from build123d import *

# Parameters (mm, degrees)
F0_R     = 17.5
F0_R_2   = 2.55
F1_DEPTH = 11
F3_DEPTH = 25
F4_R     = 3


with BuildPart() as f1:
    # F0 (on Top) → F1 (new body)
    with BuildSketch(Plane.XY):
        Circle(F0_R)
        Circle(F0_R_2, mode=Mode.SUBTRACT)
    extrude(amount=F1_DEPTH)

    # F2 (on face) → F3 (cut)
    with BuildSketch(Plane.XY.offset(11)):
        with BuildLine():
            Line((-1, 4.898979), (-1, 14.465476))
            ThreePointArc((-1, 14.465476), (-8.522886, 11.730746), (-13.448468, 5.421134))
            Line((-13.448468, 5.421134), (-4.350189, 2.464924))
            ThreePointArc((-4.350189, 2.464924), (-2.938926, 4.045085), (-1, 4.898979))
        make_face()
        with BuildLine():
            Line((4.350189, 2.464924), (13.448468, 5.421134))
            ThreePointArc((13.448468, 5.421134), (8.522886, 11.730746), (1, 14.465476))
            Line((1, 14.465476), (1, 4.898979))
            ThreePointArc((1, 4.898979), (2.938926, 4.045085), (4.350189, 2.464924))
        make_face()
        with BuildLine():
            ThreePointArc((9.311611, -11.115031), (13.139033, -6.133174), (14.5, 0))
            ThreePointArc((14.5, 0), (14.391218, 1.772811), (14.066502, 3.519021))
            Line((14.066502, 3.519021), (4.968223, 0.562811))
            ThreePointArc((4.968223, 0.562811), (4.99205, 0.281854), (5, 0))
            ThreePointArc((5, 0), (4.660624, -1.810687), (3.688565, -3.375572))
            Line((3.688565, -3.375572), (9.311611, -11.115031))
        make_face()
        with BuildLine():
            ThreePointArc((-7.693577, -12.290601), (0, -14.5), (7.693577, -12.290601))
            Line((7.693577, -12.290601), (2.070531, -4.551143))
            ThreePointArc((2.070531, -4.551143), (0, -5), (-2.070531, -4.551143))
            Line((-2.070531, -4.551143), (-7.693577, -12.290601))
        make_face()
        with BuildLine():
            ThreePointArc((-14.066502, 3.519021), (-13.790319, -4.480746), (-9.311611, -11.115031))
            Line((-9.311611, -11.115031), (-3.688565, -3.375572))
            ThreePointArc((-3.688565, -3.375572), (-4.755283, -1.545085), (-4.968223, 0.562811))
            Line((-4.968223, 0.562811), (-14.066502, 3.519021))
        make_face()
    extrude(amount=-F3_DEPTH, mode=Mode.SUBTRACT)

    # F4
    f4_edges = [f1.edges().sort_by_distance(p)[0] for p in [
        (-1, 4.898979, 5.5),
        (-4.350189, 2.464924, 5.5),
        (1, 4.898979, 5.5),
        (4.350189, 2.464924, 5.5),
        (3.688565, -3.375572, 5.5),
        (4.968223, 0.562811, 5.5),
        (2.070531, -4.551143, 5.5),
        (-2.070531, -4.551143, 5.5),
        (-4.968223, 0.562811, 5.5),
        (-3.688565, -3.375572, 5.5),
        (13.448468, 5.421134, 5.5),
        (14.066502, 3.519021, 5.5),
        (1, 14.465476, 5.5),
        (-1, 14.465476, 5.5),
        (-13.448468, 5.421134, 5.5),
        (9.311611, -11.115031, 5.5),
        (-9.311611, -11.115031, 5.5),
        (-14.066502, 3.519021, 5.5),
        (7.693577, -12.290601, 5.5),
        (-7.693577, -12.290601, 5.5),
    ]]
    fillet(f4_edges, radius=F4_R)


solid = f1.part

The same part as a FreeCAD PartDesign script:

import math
import FreeCAD as App
import Part
import Sketcher

V = App.Vector
Q = App.Units.Quantity


def edges_at(feature, points):
    """Names of the edges that pass closest to the given points."""
    edges = feature.Shape.Edges
    near = lambda p: min(range(len(edges)), key=lambda i: edges[i].distToShape(Part.Vertex(*p))[0])
    return sorted({f"Edge{near(p) + 1}" for p in points})

doc = App.newDocument("Part")
body = doc.addObject("PartDesign::Body", "Body")

# Sketch on XY plane
sketch1 = body.newObject("Sketcher::SketchObject", "Sketch")
sketch1.AttachmentSupport = (doc.getObject("XY_Plane"), [""])
sketch1.MapMode = "FlatFace"
sketch1.addGeometry([
    Part.Circle(V(0, 0, 0), V(0, 0, 1), 17.5),
    Part.Circle(V(0, 0, 0), V(0, 0, 1), 2.5),
], False)
sketch1.addConstraint([
    Sketcher.Constraint("Coincident", 0, 3, -1, 1),
    Sketcher.Constraint("Coincident", 1, 3, -1, 1),
    Sketcher.Constraint("Diameter", 0, Q("35 mm")),
    Sketcher.Constraint("Diameter", 1, Q("5.1 mm")),
])
pad1 = body.newObject("PartDesign::Pad", "Pad")
pad1.Profile = sketch1
pad1.Length = 11

# Sketch on XY plane
sketch2 = body.newObject("Sketcher::SketchObject", "Sketch001")
sketch2.AttachmentSupport = (doc.getObject("XY_Plane"), [""])
sketch2.MapMode = "FlatFace"
sketch2.AttachmentOffset = App.Placement(V(0, 0, 11), App.Rotation())
sketch2.addGeometry([
    Part.LineSegment(V(-1, 4.898979, 0), V(-1, 14.465476, 0)),  # 0
    Part.ArcOfCircle(Part.Circle(V(0.000001, 0, 0), V(0, 0, 1), 14.5), math.radians(93.954575), math.radians(158.045429)),  # 1
    Part.LineSegment(V(-13.448468, 5.421134, 0), V(-4.350189, 2.464924, 0)),  # 2
    Part.ArcOfCircle(Part.Circle(V(-0.000002, 0.000003, 0), V(0, 0, 1), 4.999996), math.radians(101.536941), math.radians(150.463064)),  # 3
    Part.LineSegment(V(4.350189, 2.464924, 0), V(13.448468, 5.421134, 0)),  # 4
    Part.ArcOfCircle(Part.Circle(V(-0.000001, 0, 0), V(0, 0, 1), 14.5), math.radians(21.954571), math.radians(86.045425)),  # 5
    Part.LineSegment(V(1, 14.465476, 0), V(1, 4.898979, 0)),  # 6
    Part.ArcOfCircle(Part.Circle(V(0.000002, 0.000003, 0), V(0, 0, 1), 4.999996), math.radians(29.536936), math.radians(78.463059)),  # 7
    Part.ArcOfCircle(Part.Circle(V(0.000001, -0.000001, 0), V(0, 0, 1), 14.499999), math.radians(-50.045428), math.radians(0.000005)),  # 8
    Part.ArcOfCircle(Part.Circle(V(0.000095, 0.00001, 0), V(0, 0, 1), 14.499905), math.radians(-0.000039), math.radians(14.04548)),  # 9
    Part.LineSegment(V(14.066502, 3.519021, 0), V(4.968223, 0.562811, 0)),  # 10
    Part.ArcOfCircle(Part.Circle(V(0.000432, 0.000021, 0), V(0, 0, 1), 4.999568), math.radians(-0.000239), math.radians(6.463357)),  # 11
    Part.ArcOfCircle(Part.Circle(V(0.000006, -0.000002, 0), V(0, 0, 1), 4.999994), math.radians(-42.463067), math.radians(0.000024)),  # 12
    Part.LineSegment(V(3.688565, -3.375572, 0), V(9.311611, -11.115031, 0)),  # 13
    Part.ArcOfCircle(Part.Circle(V(0, 0, 0), V(0, 0, 1), 14.5), math.radians(-122.04543), math.radians(-57.95457)),  # 14
    Part.LineSegment(V(7.693577, -12.290601, 0), V(2.070531, -4.551143, 0)),  # 15
    Part.ArcOfCircle(Part.Circle(V(0, 0.000001, 0), V(0, 0, 1), 5.000001), math.radians(-114.463035), math.radians(-65.536965)),  # 16
    Part.LineSegment(V(-2.070531, -4.551143, 0), V(-7.693577, -12.290601, 0)),  # 17
    Part.ArcOfCircle(Part.Circle(V(0.000004, 0, 0), V(0, 0, 1), 14.500003), math.radians(165.954579), math.radians(230.045416)),  # 18
    Part.LineSegment(V(-9.311611, -11.115031, 0), V(-3.688565, -3.375572, 0)),  # 19
    Part.ArcOfCircle(Part.Circle(V(-0.000007, -0.000003, 0), V(0, 0, 1), 4.999993), math.radians(173.536923), math.radians(222.463071)),  # 20
    Part.LineSegment(V(-4.968223, 0.562811, 0), V(-14.066502, 3.519021, 0)),  # 21
], False)
sketch2.addConstraint([
    Sketcher.Constraint("Coincident", 0, 2, 1, 1),
    Sketcher.Constraint("Coincident", 1, 2, 2, 1),
    Sketcher.Constraint("Coincident", 2, 2, 3, 2),
    Sketcher.Constraint("Coincident", 3, 1, 0, 1),
    Sketcher.Constraint("Coincident", 4, 2, 5, 1),
    Sketcher.Constraint("Coincident", 5, 2, 6, 1),
    Sketcher.Constraint("Coincident", 6, 2, 7, 2),
    Sketcher.Constraint("Coincident", 7, 1, 4, 1),
    Sketcher.Constraint("Coincident", 8, 2, 9, 1),
    Sketcher.Constraint("Coincident", 9, 2, 10, 1),
    Sketcher.Constraint("Coincident", 10, 2, 11, 2),
    Sketcher.Constraint("Coincident", 11, 1, 12, 2),
    Sketcher.Constraint("Coincident", 12, 1, 13, 1),
    Sketcher.Constraint("Coincident", 13, 2, 8, 1),
    Sketcher.Constraint("Coincident", 14, 2, 15, 1),
    Sketcher.Constraint("Coincident", 15, 2, 16, 2),
    Sketcher.Constraint("Coincident", 16, 1, 17, 1),
    Sketcher.Constraint("Coincident", 17, 2, 14, 1),
    Sketcher.Constraint("Coincident", 18, 2, 19, 1),
    Sketcher.Constraint("Coincident", 19, 2, 20, 2),
    Sketcher.Constraint("Coincident", 20, 1, 21, 1),
    Sketcher.Constraint("Coincident", 21, 2, 18, 1),
    Sketcher.Constraint("Vertical", 0),
    Sketcher.Constraint("Vertical", 6),
    Sketcher.Constraint("Coincident", 1, 3, -1, 1),
    Sketcher.Constraint("Coincident", 3, 3, -1, 1),
    Sketcher.Constraint("Coincident", 5, 3, -1, 1),
    Sketcher.Constraint("Coincident", 7, 3, -1, 1),
    Sketcher.Constraint("Coincident", 8, 3, -1, 1),
    Sketcher.Constraint("Coincident", 12, 3, -1, 1),
    Sketcher.Constraint("Coincident", 14, 3, -1, 1),
    Sketcher.Constraint("Coincident", 16, 3, -1, 1),
    Sketcher.Constraint("Coincident", 18, 3, -1, 1),
    Sketcher.Constraint("Coincident", 20, 3, -1, 1),
    Sketcher.Constraint("PointOnObject", 8, 2, -1),
    Sketcher.Constraint("PointOnObject", 11, 1, -1),
    Sketcher.Constraint("Radius", 16, Q("5.000001 mm")),
    Sketcher.Constraint("Radius", 1, Q("14.5 mm")),
    Sketcher.Constraint("Radius", 5, Q("14.5 mm")),
    Sketcher.Constraint("Radius", 8, Q("14.499999 mm")),
    Sketcher.Constraint("Radius", 14, Q("14.5 mm")),
    Sketcher.Constraint("DistanceX", 0, 2, -1, 1, Q("1 mm")),
    Sketcher.Constraint("DistanceX", -1, 1, 5, 2, Q("1 mm")),
    Sketcher.Constraint("DistanceX", -1, 1, 11, 1, Q("5 mm")),
    Sketcher.Constraint("Radius", 3, Q("4.999996 mm")),
    Sketcher.Constraint("Radius", 7, Q("4.999996 mm")),
    Sketcher.Constraint("Radius", 9, Q("14.499905 mm")),
    Sketcher.Constraint("Radius", 11, Q("4.999568 mm")),
    Sketcher.Constraint("Radius", 18, Q("14.500003 mm")),
    Sketcher.Constraint("Radius", 20, Q("4.999993 mm")),
    Sketcher.Constraint("DistanceY", 11, 3, 9, 2, Q("3.519 mm")),
    Sketcher.Constraint("DistanceY", 14, 2, -1, 1, Q("12.290601 mm")),
    Sketcher.Constraint("DistanceY", 17, 2, -1, 1, Q("12.290601 mm")),
    Sketcher.Constraint("DistanceY", 9, 3, 10, 2, Q("0.562801 mm")),
    Sketcher.Constraint("DistanceX", 11, 3, 15, 2, Q("2.070099 mm")),
    Sketcher.Constraint("DistanceX", 21, 2, 3, 1, Q("13.066502 mm")),
    Sketcher.Constraint("DistanceX", 1, 2, -1, 1, Q("13.448468 mm")),
    Sketcher.Constraint("DistanceX", 2, 2, -1, 1, Q("4.350189 mm")),
    Sketcher.Constraint("DistanceX", -1, 1, 7, 1, Q("4.350189 mm")),
    Sketcher.Constraint("DistanceY", -1, 1, 9, 2, Q("3.519021 mm")),
    Sketcher.Constraint("DistanceY", -1, 1, 10, 2, Q("0.562811 mm")),
    Sketcher.Constraint("DistanceX", -1, 1, 13, 2, Q("9.311611 mm")),
    Sketcher.Constraint("DistanceX", 16, 1, -1, 1, Q("2.070531 mm")),
    Sketcher.Constraint("DistanceX", 18, 2, -1, 1, Q("9.311611 mm")),
    Sketcher.Constraint("DistanceY", 19, 2, -1, 1, Q("3.375572 mm")),
    Sketcher.Constraint("DistanceY", -1, 1, 20, 1, Q("0.562811 mm")),
    Sketcher.Constraint("DistanceX", 3, 1, 4, 2, Q("14.448468 mm")),
    Sketcher.Constraint("DistanceX", 9, 3, 12, 1, Q("3.68847 mm")),
])
pocket1 = body.newObject("PartDesign::Pocket", "Pocket")
pocket1.Profile = sketch2
pocket1.Length = 25
doc.recompute()

fillet = body.newObject("PartDesign::Fillet", "Fillet")
fillet.Base = (pocket1, edges_at(pocket1, [
    (-1, 4.899, 5.5),
    (-4.35, 2.465, 5.5),
    (1, 4.899, 5.5),
    (4.35, 2.465, 5.5),
    (3.689, -3.376, 5.5),
    (4.968, 0.563, 5.5),
    (2.071, -4.551, 5.5),
    (-2.071, -4.551, 5.5),
    (-4.968, 0.563, 5.5),
    (-3.689, -3.376, 5.5),
    (13.448, 5.421, 5.5),
    (14.067, 3.519, 5.5),
    (1, 14.465, 5.5),
    (-1, 14.465, 5.5),
    (-13.448, 5.421, 5.5),
    (9.312, -11.115, 5.5),
    (-9.312, -11.115, 5.5),
    (-14.067, 3.519, 5.5),
    (7.694, -12.291, 5.5),
    (-7.694, -12.291, 5.5),
]))
fillet.Radius = 3

doc.recompute()
